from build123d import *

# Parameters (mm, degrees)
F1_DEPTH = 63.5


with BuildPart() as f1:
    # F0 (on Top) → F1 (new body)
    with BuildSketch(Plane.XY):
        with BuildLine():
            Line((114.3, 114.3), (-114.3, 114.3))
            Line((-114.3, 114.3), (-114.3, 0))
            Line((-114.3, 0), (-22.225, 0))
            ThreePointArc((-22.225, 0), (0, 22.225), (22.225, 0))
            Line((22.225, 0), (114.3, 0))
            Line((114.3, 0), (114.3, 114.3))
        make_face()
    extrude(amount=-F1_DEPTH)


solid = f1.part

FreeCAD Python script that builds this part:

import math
import FreeCAD as App
import Part
import Sketcher
Q = App.Units.Quantity

doc = App.newDocument("Part")
body = doc.addObject("PartDesign::Body", "Body")

# Sketch on XY plane
sketch1 = body.newObject("Sketcher::SketchObject", "Sketch")
sketch1.AttachmentSupport = (doc.getObject("XY_Plane"), [""])
sketch1.MapMode = "FlatFace"
sketch1.addGeometry([
    Part.LineSegment(App.Vector(114.3, 114.3, 0), App.Vector(-114.3, 114.3, 0)),  # 0
    Part.LineSegment(App.Vector(-114.3, 114.3, 0), App.Vector(-114.3, 0, 0)),  # 1
    Part.LineSegment(App.Vector(-114.3, 0, 0), App.Vector(-22.225, 0, 0)),  # 2
    Part.ArcOfCircle(Part.Circle(App.Vector(0, 0, 0), App.Vector(0, 0, 1), 22.225), math.radians(0), math.radians(180)),  # 3
    Part.LineSegment(App.Vector(22.225, 0, 0), App.Vector(114.3, 0, 0)),  # 4
    Part.LineSegment(App.Vector(114.3, 0, 0), App.Vector(114.3, 114.3, 0)),  # 5
], False)
sketch1.addConstraint([
    Sketcher.Constraint("Coincident", 0, 2, 1, 1),
    Sketcher.Constraint("Coincident", 1, 2, 2, 1),
    Sketcher.Constraint("Coincident", 2, 2, 3, 2),
    Sketcher.Constraint("Coincident", 3, 1, 4, 1),
    Sketcher.Constraint("Coincident", 4, 2, 5, 1),
    Sketcher.Constraint("Coincident", 5, 2, 0, 1),
    Sketcher.Constraint("Horizontal", 0),
    Sketcher.Constraint("Vertical", 1),
    Sketcher.Constraint("Horizontal", 2),
    Sketcher.Constraint("Horizontal", 4),
    Sketcher.Constraint("Vertical", 5),
    Sketcher.Constraint("Coincident", 3, 3, -1, 1),
    Sketcher.Constraint("Symmetric", 1, 2, 4, 2, -1, 1),
    Sketcher.Constraint("PointOnObject", 1, 2, -1),
    Sketcher.Constraint("DistanceX", 0, 2, 0, 1, Q("9 in")),
    Sketcher.Constraint("DistanceY", 1, 2, 1, 1, Q("4.5 in")),
    Sketcher.Constraint("Radius", 3, Q("0.875 in")),
])
pad1 = body.newObject("PartDesign::Pad", "Pad")
pad1.Profile = sketch1
pad1.Length = Q("2.5 in")
pad1.Reversed = True

doc.recompute()
